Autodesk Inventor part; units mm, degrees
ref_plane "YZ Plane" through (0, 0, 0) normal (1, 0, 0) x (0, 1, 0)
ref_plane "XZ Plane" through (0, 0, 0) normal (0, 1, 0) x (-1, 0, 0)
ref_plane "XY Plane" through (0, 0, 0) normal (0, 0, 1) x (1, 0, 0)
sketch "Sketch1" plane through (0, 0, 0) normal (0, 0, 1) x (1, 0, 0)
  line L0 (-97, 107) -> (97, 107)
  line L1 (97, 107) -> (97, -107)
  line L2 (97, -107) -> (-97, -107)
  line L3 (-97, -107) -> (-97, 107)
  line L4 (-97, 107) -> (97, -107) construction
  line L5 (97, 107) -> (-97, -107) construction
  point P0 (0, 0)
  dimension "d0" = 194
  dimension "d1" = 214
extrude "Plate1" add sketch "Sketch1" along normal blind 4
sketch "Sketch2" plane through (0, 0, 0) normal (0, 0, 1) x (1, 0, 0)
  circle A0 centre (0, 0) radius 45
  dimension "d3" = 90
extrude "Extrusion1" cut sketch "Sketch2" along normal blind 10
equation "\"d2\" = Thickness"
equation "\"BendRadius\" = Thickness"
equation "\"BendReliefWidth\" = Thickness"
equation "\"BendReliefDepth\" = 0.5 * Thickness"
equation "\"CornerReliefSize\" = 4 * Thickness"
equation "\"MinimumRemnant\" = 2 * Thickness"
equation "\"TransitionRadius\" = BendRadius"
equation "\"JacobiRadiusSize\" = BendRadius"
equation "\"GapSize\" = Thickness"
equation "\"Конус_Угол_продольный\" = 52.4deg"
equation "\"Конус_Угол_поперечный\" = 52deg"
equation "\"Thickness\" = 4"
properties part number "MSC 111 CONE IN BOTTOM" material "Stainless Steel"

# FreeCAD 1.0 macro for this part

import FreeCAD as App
import Part
import Sketcher
from FreeCAD import Vector


def add_polygon(sketch, points):
    """Adds a closed chain of lines whose ends are joined by coincident constraints."""
    first, n = sketch.GeometryCount, len(points)
    for a, b in zip(points, points[1:] + points[:1]):
        sketch.addGeometry(Part.LineSegment(App.Vector(*a, 0), App.Vector(*b, 0)), False)
    for i in range(n):
        sketch.addConstraint(Sketcher.Constraint("Coincident", first + i, 2, first + (i + 1) % n, 1))

doc = App.newDocument("Part")
params = doc.addObject("Spreadsheet::Sheet", "Params")
for row, (alias, value) in enumerate([
    ("sketch1_width", "194 mm"),
    ("sketch1_height", "214 mm"),
    ("pad1_length", "4 mm"),
    ("sketch2_diameter", "90 mm"),
    ("pocket1_length", "10 mm"),
], start=1):
    params.set(f"A{row}", alias)
    params.set(f"B{row}", "=" + value)
    params.setAlias(f"B{row}", alias)

body = doc.addObject("PartDesign::Body", "Body")

# Sketch on XY plane
sketch1 = body.newObject("Sketcher::SketchObject", "Sketch")
sketch1.AttachmentSupport = (doc.getObject("XY_Plane"), [""])
sketch1.MapMode = "FlatFace"
add_polygon(sketch1, [(97, 107), (-97, 107), (-97, -107), (97, -107)])  # lines 0-3
sketch1.addConstraint(Sketcher.Constraint("Horizontal", 0))
sketch1.addConstraint(Sketcher.Constraint("Vertical", 1))
sketch1.addConstraint(Sketcher.Constraint("Horizontal", 2))
sketch1.addConstraint(Sketcher.Constraint("Vertical", 3))
sketch1.addConstraint(Sketcher.Constraint("Symmetric", 0, 2, 2, 2, -1, 1))
sketch1.addConstraint(Sketcher.Constraint("DistanceX", 0, 2, 0, 1, 194.0))
sketch1.addConstraint(Sketcher.Constraint("DistanceY", 1, 2, 1, 1, 214.0))
sketch1.setExpression("Constraints[9]", "Params.sketch1_width")
sketch1.setExpression("Constraints[10]", "Params.sketch1_height")
pad1 = body.newObject("PartDesign::Pad", "Pad")
pad1.Profile = sketch1
pad1.setExpression("Length", "Params.pad1_length")

# Sketch on XY plane
sketch2 = body.newObject("Sketcher::SketchObject", "Sketch001")
sketch2.AttachmentSupport = (doc.getObject("XY_Plane"), [""])
sketch2.MapMode = "FlatFace"
sketch2.addGeometry(Part.Circle(Vector(0, 0, 0), Vector(0, 0, 1), 45), False)
sketch2.addConstraint(Sketcher.Constraint("Coincident", 0, 3, -1, 1))
sketch2.addConstraint(Sketcher.Constraint("Diameter", 0, 90.0))
sketch2.setExpression("Constraints[1]", "Params.sketch2_diameter")
pocket1 = body.newObject("PartDesign::Pocket", "Pocket")
pocket1.Profile = sketch2
pocket1.setExpression("Length", "Params.pocket1_length")
pocket1.Reversed = True

doc.recompute()
